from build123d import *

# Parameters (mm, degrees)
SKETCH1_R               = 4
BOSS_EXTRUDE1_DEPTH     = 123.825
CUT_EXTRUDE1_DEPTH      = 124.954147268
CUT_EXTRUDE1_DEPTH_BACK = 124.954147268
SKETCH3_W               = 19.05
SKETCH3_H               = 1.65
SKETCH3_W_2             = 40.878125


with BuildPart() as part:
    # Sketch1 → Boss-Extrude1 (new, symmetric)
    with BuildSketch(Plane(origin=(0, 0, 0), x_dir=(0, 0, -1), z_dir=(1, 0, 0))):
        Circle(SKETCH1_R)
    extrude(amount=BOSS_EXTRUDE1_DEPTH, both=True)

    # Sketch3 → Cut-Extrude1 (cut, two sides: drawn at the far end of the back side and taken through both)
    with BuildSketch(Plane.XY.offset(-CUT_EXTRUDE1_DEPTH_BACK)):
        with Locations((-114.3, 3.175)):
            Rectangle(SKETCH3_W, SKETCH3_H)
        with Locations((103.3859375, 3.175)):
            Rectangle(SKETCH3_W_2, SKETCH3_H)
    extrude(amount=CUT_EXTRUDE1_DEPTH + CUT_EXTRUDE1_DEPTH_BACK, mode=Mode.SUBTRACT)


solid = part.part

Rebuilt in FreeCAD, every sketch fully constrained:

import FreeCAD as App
import Part
import Sketcher

V = App.Vector
Q = App.Units.Quantity

doc = App.newDocument("Part")
body = doc.addObject("PartDesign::Body", "Body")

# Sketch on YZ plane
sketch1 = body.newObject("Sketcher::SketchObject", "Sketch")
sketch1.AttachmentSupport = (doc.getObject("YZ_Plane"), [""])
sketch1.MapMode = "FlatFace"
sketch1.addGeometry(Part.Circle(V(0, 0, 0), V(0, 0, 1), 4), False)
sketch1.addConstraint(Sketcher.Constraint("Coincident", 0, 3, -1, 1))
sketch1.addConstraint(Sketcher.Constraint("Diameter", 0, Q("8 mm")))
pad1 = body.newObject("PartDesign::Pad", "Pad")
pad1.Profile = sketch1
pad1.Length = Q("9.75 in")
pad1.Midplane = True

# Sketch on XY plane
sketch2 = body.newObject("Sketcher::SketchObject", "Sketch001")
sketch2.AttachmentSupport = (doc.getObject("XY_Plane"), [""])
sketch2.MapMode = "FlatFace"
sketch2.addGeometry(Part.LineSegment(V(-123.825, 4, 0), V(-123.825, 2.35, 0)), False)
sketch2.addGeometry(Part.LineSegment(V(-123.825, 2.35, 0), V(-104.775, 2.35, 0)), False)
sketch2.addGeometry(Part.LineSegment(V(-104.775, 2.35, 0), V(-104.775, 4, 0)), False)
sketch2.addGeometry(Part.LineSegment(V(-104.775, 4, 0), V(-123.825, 4, 0)), False)
sketch2.addGeometry(Part.LineSegment(V(82.946875, 4, 0), V(82.946875, 2.35, 0)), False)
sketch2.addGeometry(Part.LineSegment(V(82.946875, 2.35, 0), V(123.825, 2.35, 0)), False)
sketch2.addGeometry(Part.LineSegment(V(123.825, 2.35, 0), V(123.825, 4, 0)), False)
sketch2.addGeometry(Part.LineSegment(V(123.825, 4, 0), V(82.946875, 4, 0)), False)
sketch2.addConstraint(Sketcher.Constraint("Coincident", 0, 2, 1, 1))
sketch2.addConstraint(Sketcher.Constraint("Coincident", 1, 2, 2, 1))
sketch2.addConstraint(Sketcher.Constraint("Coincident", 2, 2, 3, 1))
sketch2.addConstraint(Sketcher.Constraint("Coincident", 3, 2, 0, 1))
sketch2.addConstraint(Sketcher.Constraint("Coincident", 4, 2, 5, 1))
sketch2.addConstraint(Sketcher.Constraint("Coincident", 5, 2, 6, 1))
sketch2.addConstraint(Sketcher.Constraint("Coincident", 6, 2, 7, 1))
sketch2.addConstraint(Sketcher.Constraint("Coincident", 7, 2, 4, 1))
sketch2.addConstraint(Sketcher.Constraint("Vertical", 0))
sketch2.addConstraint(Sketcher.Constraint("Horizontal", 1))
sketch2.addConstraint(Sketcher.Constraint("Vertical", 2))
sketch2.addConstraint(Sketcher.Constraint("Horizontal", 3))
sketch2.addConstraint(Sketcher.Constraint("Vertical", 4))
sketch2.addConstraint(Sketcher.Constraint("Horizontal", 5))
sketch2.addConstraint(Sketcher.Constraint("Vertical", 6))
sketch2.addConstraint(Sketcher.Constraint("Horizontal", 7))
sketch2.addConstraint(Sketcher.Constraint("Symmetric", 0, 2, 5, 2, -2))
sketch2.addConstraint(Sketcher.Constraint("Horizontal", 3, 2, 6, 2))
sketch2.addConstraint(Sketcher.Constraint("DistanceX", 1, 2, 5, 2, Q("9 in")))
sketch2.addConstraint(Sketcher.Constraint("DistanceX", 1, 1, 1, 2, Q("0.75 in")))
sketch2.addConstraint(Sketcher.Constraint("DistanceX", 5, 1, 5, 2, Q("1.609375 in")))
sketch2.addConstraint(Sketcher.Constraint("DistanceY", 0, 2, 0, 1, Q("1.65 mm")))
sketch2.addConstraint(Sketcher.Constraint("DistanceY", -1, 1, 0, 2, Q("2.35 mm")))
pocket1 = body.newObject("PartDesign::Pocket", "Pocket")
pocket1.Profile = sketch2
pocket1.Type = "ThroughAll"
pocket1.Midplane = True

doc.recompute()
